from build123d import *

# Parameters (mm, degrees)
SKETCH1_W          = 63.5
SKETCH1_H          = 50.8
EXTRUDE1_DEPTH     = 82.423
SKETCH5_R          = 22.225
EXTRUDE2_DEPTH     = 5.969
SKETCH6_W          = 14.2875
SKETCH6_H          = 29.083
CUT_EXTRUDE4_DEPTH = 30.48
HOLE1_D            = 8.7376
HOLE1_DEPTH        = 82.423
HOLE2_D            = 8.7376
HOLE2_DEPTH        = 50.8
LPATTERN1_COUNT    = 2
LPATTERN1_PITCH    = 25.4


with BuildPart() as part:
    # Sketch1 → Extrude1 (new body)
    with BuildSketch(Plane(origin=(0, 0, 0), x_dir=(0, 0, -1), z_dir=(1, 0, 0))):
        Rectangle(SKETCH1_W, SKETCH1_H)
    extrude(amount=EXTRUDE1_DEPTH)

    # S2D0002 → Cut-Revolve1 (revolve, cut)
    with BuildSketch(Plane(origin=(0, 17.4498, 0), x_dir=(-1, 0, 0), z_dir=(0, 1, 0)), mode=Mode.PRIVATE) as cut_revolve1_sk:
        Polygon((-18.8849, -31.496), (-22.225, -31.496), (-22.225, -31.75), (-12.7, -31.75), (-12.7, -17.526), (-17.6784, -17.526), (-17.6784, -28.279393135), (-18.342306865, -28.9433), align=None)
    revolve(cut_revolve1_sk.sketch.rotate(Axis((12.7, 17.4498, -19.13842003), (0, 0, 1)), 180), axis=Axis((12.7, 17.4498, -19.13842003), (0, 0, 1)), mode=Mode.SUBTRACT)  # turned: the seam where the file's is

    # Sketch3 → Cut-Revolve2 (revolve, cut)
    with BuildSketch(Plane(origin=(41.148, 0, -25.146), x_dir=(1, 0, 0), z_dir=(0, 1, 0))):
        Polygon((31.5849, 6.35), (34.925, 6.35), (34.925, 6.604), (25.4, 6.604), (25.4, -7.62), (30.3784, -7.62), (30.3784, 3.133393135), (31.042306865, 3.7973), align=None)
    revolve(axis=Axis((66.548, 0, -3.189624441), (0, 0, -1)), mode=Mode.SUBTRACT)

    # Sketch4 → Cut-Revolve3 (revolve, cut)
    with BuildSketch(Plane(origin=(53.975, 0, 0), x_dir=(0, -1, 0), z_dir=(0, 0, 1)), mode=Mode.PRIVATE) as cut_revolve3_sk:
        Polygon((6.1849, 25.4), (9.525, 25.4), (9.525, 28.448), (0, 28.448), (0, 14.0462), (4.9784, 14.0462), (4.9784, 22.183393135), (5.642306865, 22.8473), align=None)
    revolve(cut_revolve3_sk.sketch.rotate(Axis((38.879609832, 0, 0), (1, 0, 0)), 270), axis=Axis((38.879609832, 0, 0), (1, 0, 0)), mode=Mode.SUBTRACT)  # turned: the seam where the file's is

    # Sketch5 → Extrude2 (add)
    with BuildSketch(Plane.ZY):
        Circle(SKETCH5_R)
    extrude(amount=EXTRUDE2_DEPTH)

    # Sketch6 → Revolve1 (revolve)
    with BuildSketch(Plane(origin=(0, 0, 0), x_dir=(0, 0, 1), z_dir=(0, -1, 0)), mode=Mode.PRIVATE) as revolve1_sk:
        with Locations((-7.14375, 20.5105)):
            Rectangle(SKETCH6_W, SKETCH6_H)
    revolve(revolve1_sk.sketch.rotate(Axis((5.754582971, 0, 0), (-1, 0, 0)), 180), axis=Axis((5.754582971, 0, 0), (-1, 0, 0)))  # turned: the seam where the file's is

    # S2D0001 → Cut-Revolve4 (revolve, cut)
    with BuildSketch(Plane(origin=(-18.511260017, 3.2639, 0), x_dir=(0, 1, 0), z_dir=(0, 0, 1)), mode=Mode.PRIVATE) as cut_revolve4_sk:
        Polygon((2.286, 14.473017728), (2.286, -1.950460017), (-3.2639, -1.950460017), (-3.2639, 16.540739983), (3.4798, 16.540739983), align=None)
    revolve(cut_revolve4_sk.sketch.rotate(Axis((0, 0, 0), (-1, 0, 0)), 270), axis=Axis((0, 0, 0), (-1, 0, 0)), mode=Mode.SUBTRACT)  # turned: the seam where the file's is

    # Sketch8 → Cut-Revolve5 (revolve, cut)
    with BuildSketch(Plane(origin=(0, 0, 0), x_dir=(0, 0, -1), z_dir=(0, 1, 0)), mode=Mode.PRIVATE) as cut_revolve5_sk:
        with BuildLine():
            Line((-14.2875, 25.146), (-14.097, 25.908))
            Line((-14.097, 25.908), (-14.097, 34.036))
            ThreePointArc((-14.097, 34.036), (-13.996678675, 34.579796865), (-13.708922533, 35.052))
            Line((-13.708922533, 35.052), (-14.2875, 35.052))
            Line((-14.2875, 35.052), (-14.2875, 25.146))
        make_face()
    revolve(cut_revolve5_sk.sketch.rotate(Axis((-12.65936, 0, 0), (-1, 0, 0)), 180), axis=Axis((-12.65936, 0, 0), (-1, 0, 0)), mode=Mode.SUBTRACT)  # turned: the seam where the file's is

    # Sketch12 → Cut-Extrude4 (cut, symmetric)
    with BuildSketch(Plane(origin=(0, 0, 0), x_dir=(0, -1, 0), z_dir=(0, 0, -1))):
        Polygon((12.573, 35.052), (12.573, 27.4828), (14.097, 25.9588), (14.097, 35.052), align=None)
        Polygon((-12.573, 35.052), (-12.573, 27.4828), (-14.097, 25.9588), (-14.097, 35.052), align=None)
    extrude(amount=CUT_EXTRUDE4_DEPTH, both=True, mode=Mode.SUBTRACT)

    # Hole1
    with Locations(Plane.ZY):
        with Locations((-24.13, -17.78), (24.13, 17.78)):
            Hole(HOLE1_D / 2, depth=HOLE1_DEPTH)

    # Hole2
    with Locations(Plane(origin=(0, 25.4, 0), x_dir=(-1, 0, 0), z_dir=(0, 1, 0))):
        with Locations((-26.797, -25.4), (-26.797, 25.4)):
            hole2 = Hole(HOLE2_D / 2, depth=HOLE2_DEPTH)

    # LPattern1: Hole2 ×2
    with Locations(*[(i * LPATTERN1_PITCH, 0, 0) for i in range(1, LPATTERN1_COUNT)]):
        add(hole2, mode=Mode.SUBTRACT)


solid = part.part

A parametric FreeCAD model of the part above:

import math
import FreeCAD as App
import Part
import Sketcher
from FreeCAD import Vector
Q = App.Units.Quantity


def add_polygon(sketch, points):
    """Adds a closed chain of lines whose ends are joined by coincident constraints."""
    first, n = sketch.GeometryCount, len(points)
    for a, b in zip(points, points[1:] + points[:1]):
        sketch.addGeometry(Part.LineSegment(App.Vector(*a, 0), App.Vector(*b, 0)), False)
    for i in range(n):
        sketch.addConstraint(Sketcher.Constraint("Coincident", first + i, 2, first + (i + 1) % n, 1))

doc = App.newDocument("Part")
params = doc.addObject("Spreadsheet::Sheet", "Params")
for row, (alias, value) in enumerate([
    ("sketch1_width", "2 in"),
    ("sketch1_height", "2.5 in"),
    ("pad1_length", "3.245 in"),
    ("sketch2_height", "0.01 in"),
    ("sketch2_height2", "0.56 in"),
    ("sketch2_width", "0.375 in"),
    ("sketch2_width2", "0.196 in"),
    ("groove_angle", "360 deg"),
    ("sketch3_height", "0.01 in"),
    ("sketch3_height2", "0.56 in"),
    ("sketch3_width", "0.375 in"),
    ("sketch3_width2", "0.196 in"),
    ("groove2_angle", "360 deg"),
    ("sketch4_width", "0.12 in"),
    ("sketch4_width2", "0.567 in"),
    ("sketch4_height", "0.375 in"),
    ("sketch4_height2", "0.196 in"),
    ("groove3_angle", "360 deg"),
    ("sketch5_diameter", "1.75 in"),
    ("pad2_length", "0.235 in"),
    ("sketch6_width", "1.145 in"),
    ("sketch6_height", "0.5625 in"),
    ("revolution_angle", "360 deg"),
    ("sketch7_width", "0.728 in"),
    ("sketch7_length", "0.094 in"),
    ("groove4_angle", "360 deg"),
    ("sketch8_radius", "0.06 in"),
    ("sketch8_width", "0.32 in"),
    ("sketch8_width2", "0.39 in"),
    ("groove5_angle", "360 deg"),
    ("sketch9_height", "0.06 in"),
    ("sketch9_width", "0.298 in"),
    ("pocket1_length", "2.4 in"),
    ("sketch10_diameter", "0.344 in"),
    ("hole_diameter", "0.344 in"),
    ("hole_depth", "3.245 in"),
    ("sketch11_diameter", "0.344 in"),
    ("hole2_diameter", "0.344 in"),
    ("hole2_depth", "2 in"),
    ("linearpattern_pitch", "1 in"),
], start=1):
    params.set(f"A{row}", alias)
    params.set(f"B{row}", "=" + value)
    params.setAlias(f"B{row}", alias)

body = doc.addObject("PartDesign::Body", "Body")

# Sketch on YZ plane
sketch1 = body.newObject("Sketcher::SketchObject", "Sketch")
sketch1.AttachmentSupport = (doc.getObject("YZ_Plane"), [""])
sketch1.MapMode = "FlatFace"
add_polygon(sketch1, [(25, 32), (-25, 32), (-25, -32), (25, -32)])  # lines 0-3
sketch1.addConstraint(Sketcher.Constraint("Horizontal", 0))
sketch1.addConstraint(Sketcher.Constraint("Vertical", 1))
sketch1.addConstraint(Sketcher.Constraint("Horizontal", 2))
sketch1.addConstraint(Sketcher.Constraint("Vertical", 3))
sketch1.addConstraint(Sketcher.Constraint("Symmetric", 0, 2, 2, 2, -1, 1))
sketch1.addConstraint(Sketcher.Constraint("DistanceX", 0, 2, 0, 1, Q("2 in")))
sketch1.addConstraint(Sketcher.Constraint("DistanceY", 1, 2, 1, 1, Q("2.5 in")))
sketch1.setExpression("Constraints[9]", "Params.sketch1_width")
sketch1.setExpression("Constraints[10]", "Params.sketch1_height")
pad1 = body.newObject("PartDesign::Pad", "Pad")
pad1.Profile = sketch1
pad1.setExpression("Length", "Params.pad1_length")

# Sketch on XZ plane
sketch2 = body.newObject("Sketcher::SketchObject", "Sketch001")
sketch2.AttachmentSupport = (doc.getObject("XZ_Plane"), [""])
sketch2.MapMode = "FlatFace"
sketch2.AttachmentOffset = App.Placement(Vector(0, 0, -0.687 * 25.4), App.Rotation())
add_polygon(sketch2, [(18.88, -31.5), (22.23, -31.5), (22.23, -31.75), (12.7, -31.75), (12.7, -17.53), (17.68, -17.53), (17.68, -28.28), (18.34, -28.94)])  # lines 0-7
sketch2.addGeometry(Part.LineSegment(Vector(12.7, -31.75, 0), Vector(12.7, -17.53, 0)), True)  # axis
sketch2.addConstraint(Sketcher.Constraint("Horizontal", 0))
sketch2.addConstraint(Sketcher.Constraint("Vertical", 1))
sketch2.addConstraint(Sketcher.Constraint("Horizontal", 2))
sketch2.addConstraint(Sketcher.Constraint("Vertical", 3))
sketch2.addConstraint(Sketcher.Constraint("Horizontal", 4))
sketch2.addConstraint(Sketcher.Constraint("Vertical", 5))
sketch2.addConstraint(Sketcher.Constraint("Vertical", 8))
sketch2.addConstraint(Sketcher.Constraint("Coincident", 8, 1, 2, 2))
sketch2.addConstraint(Sketcher.Constraint("Horizontal", 4, 2, 8, 2))
sketch2.addConstraint(Sketcher.Constraint("Angle", 6, Q("-45 deg")))
sketch2.addConstraint(Sketcher.Constraint("Angle", 7, Q("-78 deg")))
sketch2.addConstraint(Sketcher.Constraint("DistanceY", 1, 2, 1, 1, Q("0.01 in")))
sketch2.addConstraint(Sketcher.Constraint("DistanceY", 3, 1, 3, 2, Q("0.56 in")))
sketch2.addConstraint(Sketcher.Constraint("DistanceX", -1, 1, 2, 2, Q("0.5 in")))
sketch2.addConstraint(Sketcher.Constraint("DistanceX", 2, 2, 2, 1, Q("0.375 in")))
sketch2.addConstraint(Sketcher.Constraint("DistanceX", 4, 1, 4, 2, Q("0.196 in")))
sketch2.addConstraint(Sketcher.Constraint("DistanceY", 0, 2, -1, 1, Q("1.24 in")))
sketch2.addConstraint(Sketcher.Constraint("DistanceX", 0, 1, 0, 2, Q("0.1315 in")))
sketch2.addConstraint(Sketcher.Constraint("DistanceY", 6, 2, -1, 1, Q("1.1395 in")))
sketch2.setExpression("Constraints[19]", "Params.sketch2_height")
sketch2.setExpression("Constraints[20]", "Params.sketch2_height2")
sketch2.setExpression("Constraints[22]", "Params.sketch2_width")
sketch2.setExpression("Constraints[23]", "Params.sketch2_width2")
groove = body.newObject("PartDesign::Groove", "Groove")
groove.Profile = sketch2
groove.ReferenceAxis = (sketch2, ["Axis0"])
groove.setExpression("Angle", "Params.groove_angle")

# Sketch on XZ plane
sketch3 = body.newObject("Sketcher::SketchObject", "Sketch002")
sketch3.AttachmentSupport = (doc.getObject("XZ_Plane"), [""])
sketch3.MapMode = "FlatFace"
add_polygon(sketch3, [(72.73, -31.5), (76.07, -31.5), (76.07, -31.75), (66.55, -31.75), (66.55, -17.53), (71.53, -17.53), (71.53, -28.28), (72.19, -28.94)])  # lines 0-7
sketch3.addGeometry(Part.LineSegment(Vector(66.55, -17.53, 0), Vector(66.55, -31.75, 0)), True)  # axis
sketch3.addConstraint(Sketcher.Constraint("Horizontal", 0))
sketch3.addConstraint(Sketcher.Constraint("Vertical", 1))
sketch3.addConstraint(Sketcher.Constraint("Horizontal", 2))
sketch3.addConstraint(Sketcher.Constraint("Vertical", 3))
sketch3.addConstraint(Sketcher.Constraint("Horizontal", 4))
sketch3.addConstraint(Sketcher.Constraint("Vertical", 5))
sketch3.addConstraint(Sketcher.Constraint("Vertical", 8))
sketch3.addConstraint(Sketcher.Constraint("Coincident", 8, 1, 3, 2))
sketch3.addConstraint(Sketcher.Constraint("Horizontal", 1, 2, 8, 2))
sketch3.addConstraint(Sketcher.Constraint("Angle", 6, Q("-45 deg")))
sketch3.addConstraint(Sketcher.Constraint("Angle", 7, Q("-78 deg")))
sketch3.addConstraint(Sketcher.Constraint("DistanceY", 1, 2, 1, 1, Q("0.01 in")))
sketch3.addConstraint(Sketcher.Constraint("DistanceY", 3, 1, 3, 2, Q("0.56 in")))
sketch3.addConstraint(Sketcher.Constraint("DistanceX", 2, 2, 2, 1, Q("0.375 in")))
sketch3.addConstraint(Sketcher.Constraint("DistanceX", 4, 1, 4, 2, Q("0.196 in")))
sketch3.addConstraint(Sketcher.Constraint("DistanceY", 0, 2, -1, 1, Q("1.24 in")))
sketch3.addConstraint(Sketcher.Constraint("DistanceX", -1, 1, 2, 2, Q("2.62 in")))
sketch3.addConstraint(Sketcher.Constraint("DistanceX", 0, 1, 0, 2, Q("0.1315 in")))
sketch3.addConstraint(Sketcher.Constraint("DistanceY", 6, 2, -1, 1, Q("1.1395 in")))
sketch3.setExpression("Constraints[19]", "Params.sketch3_height")
sketch3.setExpression("Constraints[20]", "Params.sketch3_height2")
sketch3.setExpression("Constraints[21]", "Params.sketch3_width")
sketch3.setExpression("Constraints[22]", "Params.sketch3_width2")
groove2 = body.newObject("PartDesign::Groove", "Groove001")
groove2.Profile = sketch3
groove2.ReferenceAxis = (sketch3, ["Axis0"])
groove2.setExpression("Angle", "Params.groove2_angle")

# Sketch on XY plane
sketch4 = body.newObject("Sketcher::SketchObject", "Sketch003")
sketch4.AttachmentSupport = (doc.getObject("XY_Plane"), [""])
sketch4.MapMode = "FlatFace"
add_polygon(sketch4, [(79.4, -6.2), (79.4, -9.5), (82.4, -9.5), (82.4, 0), (68, 0), (68, -5), (76.2, -5), (76.8, -5.6)])  # lines 0-7
sketch4.addConstraint(Sketcher.Constraint("Vertical", 0))
sketch4.addConstraint(Sketcher.Constraint("Horizontal", 1))
sketch4.addConstraint(Sketcher.Constraint("Vertical", 2))
sketch4.addConstraint(Sketcher.Constraint("Horizontal", 3))
sketch4.addConstraint(Sketcher.Constraint("Vertical", 4))
sketch4.addConstraint(Sketcher.Constraint("Horizontal", 5))
sketch4.addConstraint(Sketcher.Constraint("PointOnObject", 2, 2, -1))
sketch4.addConstraint(Sketcher.Constraint("Angle", 6, Q("-45 deg")))
sketch4.addConstraint(Sketcher.Constraint("Angle", 7, Q("-12 deg")))
sketch4.addConstraint(Sketcher.Constraint("DistanceX", 1, 1, 1, 2, Q("0.12 in")))
sketch4.addConstraint(Sketcher.Constraint("DistanceX", 3, 2, 3, 1, Q("0.567 in")))
sketch4.addConstraint(Sketcher.Constraint("DistanceY", 2, 1, 2, 2, Q("0.375 in")))
sketch4.addConstraint(Sketcher.Constraint("DistanceY", 4, 2, 4, 1, Q("0.196 in")))
sketch4.addConstraint(Sketcher.Constraint("DistanceY", 0, 2, 0, 1, Q("0.1315 in")))
sketch4.addConstraint(Sketcher.Constraint("DistanceX", -1, 1, 0, 2, Q("3.125 in")))
sketch4.addConstraint(Sketcher.Constraint("DistanceX", -1, 1, 6, 2, Q("3.0245 in")))
sketch4.setExpression("Constraints[17]", "Params.sketch4_width")
sketch4.setExpression("Constraints[18]", "Params.sketch4_width2")
sketch4.setExpression("Constraints[19]", "Params.sketch4_height")
sketch4.setExpression("Constraints[20]", "Params.sketch4_height2")
groove3 = body.newObject("PartDesign::Groove", "Groove002")
groove3.Profile = sketch4
groove3.ReferenceAxis = (sketch4, ["H_Axis"])
groove3.setExpression("Angle", "Params.groove3_angle")

# Sketch on YZ plane
sketch5 = body.newObject("Sketcher::SketchObject", "Sketch004")
sketch5.AttachmentSupport = (doc.getObject("YZ_Plane"), [""])
sketch5.MapMode = "FlatFace"
sketch5.addGeometry(Part.Circle(Vector(0, 0, 0), Vector(0, 0, 1), 22), False)
sketch5.addConstraint(Sketcher.Constraint("Coincident", 0, 3, -1, 1))
sketch5.addConstraint(Sketcher.Constraint("Diameter", 0, Q("1.75 in")))
sketch5.setExpression("Constraints[1]", "Params.sketch5_diameter")
pad2 = body.newObject("PartDesign::Pad", "Pad001")
pad2.Profile = sketch5
pad2.setExpression("Length", "Params.pad2_length")
pad2.Reversed = True

# Sketch on XZ plane
sketch6 = body.newObject("Sketcher::SketchObject", "Sketch005")
sketch6.AttachmentSupport = (doc.getObject("XZ_Plane"), [""])
sketch6.MapMode = "FlatFace"
add_polygon(sketch6, [(-35, -14), (-6, -14), (-6, 0), (-35, 0)])  # lines 0-3
sketch6.addConstraint(Sketcher.Constraint("Horizontal", 0))
sketch6.addConstraint(Sketcher.Constraint("Vertical", 1))
sketch6.addConstraint(Sketcher.Constraint("Horizontal", 2))
sketch6.addConstraint(Sketcher.Constraint("Vertical", 3))
sketch6.addConstraint(Sketcher.Constraint("PointOnObject", 1, 2, -1))
sketch6.addConstraint(Sketcher.Constraint("DistanceX", 0, 1, 0, 2, Q("1.145 in")))
sketch6.addConstraint(Sketcher.Constraint("DistanceY", 1, 1, 1, 2, Q("0.5625 in")))
sketch6.addConstraint(Sketcher.Constraint("DistanceX", 2, 2, -1, 1, Q("1.38 in")))
sketch6.setExpression("Constraints[9]", "Params.sketch6_width")
sketch6.setExpression("Constraints[10]", "Params.sketch6_height")
revolution = body.newObject("PartDesign::Revolution", "Revolution")
revolution.Profile = sketch6
revolution.ReferenceAxis = (sketch6, ["H_Axis"])
revolution.setExpression("Angle", "Params.revolution_angle")

# Sketch on XY plane
sketch7 = body.newObject("Sketcher::SketchObject", "Sketch006")
sketch7.AttachmentSupport = (doc.getObject("XY_Plane"), [""])
sketch7.MapMode = "FlatFace"
add_polygon(sketch7, [(-16.6, 5.5), (-33, 5.5), (-35.1, 6.7), (-35.1, 0), (-16.6, 0)])  # lines 0-4
sketch7.addConstraint(Sketcher.Constraint("Horizontal", 0))
sketch7.addConstraint(Sketcher.Constraint("Vertical", 2))
sketch7.addConstraint(Sketcher.Constraint("Horizontal", 3))
sketch7.addConstraint(Sketcher.Constraint("Vertical", 4))
sketch7.addConstraint(Sketcher.Constraint("PointOnObject", 2, 2, -1))
sketch7.addConstraint(Sketcher.Constraint("Angle", 1, Q("150 deg")))
sketch7.addConstraint(Sketcher.Constraint("DistanceX", 3, 1, 3, 2, Q("0.728 in")))
sketch7.addConstraint(Sketcher.Constraint("DistanceX", 1, 2, -1, 1, Q("1.38 in")))
sketch7.addConstraint(Sketcher.Constraint("Distance", 1, Q("0.094 in")))
sketch7.addConstraint(Sketcher.Constraint("DistanceY", 2, 2, 2, 1, Q("0.2655 in")))
sketch7.setExpression("Constraints[11]", "Params.sketch7_width")
sketch7.setExpression("Constraints[13]", "Params.sketch7_length")
groove4 = body.newObject("PartDesign::Groove", "Groove003")
groove4.Profile = sketch7
groove4.ReferenceAxis = (sketch7, ["H_Axis"])
groove4.setExpression("Angle", "Params.groove4_angle")

# Sketch on XZ plane
sketch8 = body.newObject("Sketcher::SketchObject", "Sketch007")
sketch8.AttachmentSupport = (doc.getObject("XZ_Plane"), [""])
sketch8.MapMode = "FlatFace"
sketch8.addGeometry(Part.LineSegment(Vector(-25.1, 14.3, 0), Vector(-25.9, 14.1, 0)), False)
sketch8.addGeometry(Part.LineSegment(Vector(-25.9, 14.1, 0), Vector(-34, 14.1, 0)), False)
sketch8.addGeometry(Part.ArcOfCircle(Part.Circle(Vector(-34, 12.6, 0), Vector(0, 0, 1), 1.5), math.radians(90), math.radians(132)), False)
sketch8.addGeometry(Part.LineSegment(Vector(-35.1, 13.7, 0), Vector(-35.1, 14.3, 0)), False)
sketch8.addGeometry(Part.LineSegment(Vector(-35.1, 14.3, 0), Vector(-25.1, 14.3, 0)), False)
sketch8.addConstraint(Sketcher.Constraint("Coincident", 0, 2, 1, 1))
sketch8.addConstraint(Sketcher.Constraint("Tangent", 1, 2, 2, 1))
sketch8.addConstraint(Sketcher.Constraint("Coincident", 2, 2, 3, 1))
sketch8.addConstraint(Sketcher.Constraint("Coincident", 3, 2, 4, 1))
sketch8.addConstraint(Sketcher.Constraint("Coincident", 4, 2, 0, 1))
sketch8.addConstraint(Sketcher.Constraint("Horizontal", 1))
sketch8.addConstraint(Sketcher.Constraint("Vertical", 3))
sketch8.addConstraint(Sketcher.Constraint("Horizontal", 4))
sketch8.addConstraint(Sketcher.Constraint("Radius", 2, Q("0.06 in")))
sketch8.addConstraint(Sketcher.Constraint("DistanceX", 1, 2, 1, 1, Q("0.32 in")))
sketch8.addConstraint(Sketcher.Constraint("DistanceX", 4, 1, 4, 2, Q("0.39 in")))
sketch8.addConstraint(Sketcher.Constraint("DistanceX", 2, 3, -1, 1, Q("1.34 in")))
sketch8.addConstraint(Sketcher.Constraint("DistanceX", 2, 2, -1, 1, Q("1.38 in")))
sketch8.addConstraint(Sketcher.Constraint("DistanceY", -1, 1, 2, 3, Q("0.495 in")))
sketch8.addConstraint(Sketcher.Constraint("DistanceY", -1, 1, 3, 2, Q("0.5625 in")))
sketch8.setExpression("Constraints[8]", "Params.sketch8_radius")
sketch8.setExpression("Constraints[9]", "Params.sketch8_width")
sketch8.setExpression("Constraints[10]", "Params.sketch8_width2")
groove5 = body.newObject("PartDesign::Groove", "Groove004")
groove5.Profile = sketch8
groove5.ReferenceAxis = (sketch8, ["H_Axis"])
groove5.setExpression("Angle", "Params.groove5_angle")

# Sketch on XY plane
sketch9 = body.newObject("Sketcher::SketchObject", "Sketch008")
sketch9.AttachmentSupport = (doc.getObject("XY_Plane"), [""])
sketch9.MapMode = "FlatFace"
add_polygon(sketch9, [(-35.1, -12.6), (-27.5, -12.6), (-26, -14.1), (-35.1, -14.1)])  # lines 0-3
add_polygon(sketch9, [(-27.5, 12.6), (-35.1, 12.6), (-35.1, 14.1), (-26, 14.1)])  # lines 4-7
sketch9.addConstraint(Sketcher.Constraint("Horizontal", 0))
sketch9.addConstraint(Sketcher.Constraint("Horizontal", 2))
sketch9.addConstraint(Sketcher.Constraint("Vertical", 3))
sketch9.addConstraint(Sketcher.Constraint("Horizontal", 4))
sketch9.addConstraint(Sketcher.Constraint("Vertical", 5))
sketch9.addConstraint(Sketcher.Constraint("Horizontal", 6))
sketch9.addConstraint(Sketcher.Constraint("Symmetric", 3, 2, 4, 2, -1))
sketch9.addConstraint(Sketcher.Constraint("Symmetric", 1, 2, 6, 2, -1))
sketch9.addConstraint(Sketcher.Constraint("Perpendicular", 1, 7))
sketch9.addConstraint(Sketcher.Constraint("Vertical", 0, 2, 7, 2))
sketch9.addConstraint(Sketcher.Constraint("DistanceY", 3, 1, 3, 2, Q("0.06 in")))
sketch9.addConstraint(Sketcher.Constraint("DistanceX", 0, 1, 0, 2, Q("0.298 in")))
sketch9.addConstraint(Sketcher.Constraint("DistanceX", 2, 2, -1, 1, Q("1.38 in")))
sketch9.addConstraint(Sketcher.Constraint("DistanceY", 3, 2, 4, 2, Q("0.99 in")))
sketch9.setExpression("Constraints[18]", "Params.sketch9_height")
sketch9.setExpression("Constraints[19]", "Params.sketch9_width")
pocket1 = body.newObject("PartDesign::Pocket", "Pocket")
pocket1.Profile = sketch9
pocket1.setExpression("Length", "Params.pocket1_length")
pocket1.Midplane = True

# Sketch on YZ plane
sketch10 = body.newObject("Sketcher::SketchObject", "Sketch009")
sketch10.AttachmentSupport = (doc.getObject("YZ_Plane"), [""])
sketch10.MapMode = "FlatFace"
sketch10.addGeometry(Part.Circle(Vector(-17.8, -24.1, 0), Vector(0, 0, 1), 4.4), False)
sketch10.addGeometry(Part.Circle(Vector(17.8, 24.1, 0), Vector(0, 0, 1), 4.4), False)
sketch10.addConstraint(Sketcher.Constraint("Equal", 0, 1))
sketch10.addConstraint(Sketcher.Constraint("Symmetric", 0, 3, 1, 3, -1, 1))
sketch10.addConstraint(Sketcher.Constraint("Diameter", 0, Q("0.344 in")))
sketch10.addConstraint(Sketcher.Constraint("DistanceX", 0, 3, -1, 1, Q("0.7 in")))
sketch10.addConstraint(Sketcher.Constraint("DistanceY", 0, 3, 1, 3, Q("1.9 in")))
sketch10.setExpression("Constraints[2]", "Params.sketch10_diameter")
doc.recompute()
hole = body.newObject("PartDesign::Hole", "Hole")
hole.Profile = sketch10
hole.ThreadType = "None"
hole.setExpression("Diameter", "Params.hole_diameter")
hole.DepthType = "Dimension"
hole.setExpression("Depth", "Params.hole_depth")
hole.DrillPoint = "Flat"
hole.Reversed = True

# Sketch on XZ plane
sketch11 = body.newObject("Sketcher::SketchObject", "Sketch010")
sketch11.AttachmentSupport = (doc.getObject("XZ_Plane"), [""])
sketch11.MapMode = "FlatFace"
sketch11.AttachmentOffset = App.Placement(Vector(0, 0, -1 * 25.4), App.Rotation())
sketch11.addGeometry(Part.Circle(Vector(26.8, -25.4, 0), Vector(0, 0, 1), 4.4), False)
sketch11.addGeometry(Part.Circle(Vector(26.8, 25.4, 0), Vector(0, 0, 1), 4.4), False)
sketch11.addConstraint(Sketcher.Constraint("Equal", 0, 1))
sketch11.addConstraint(Sketcher.Constraint("Symmetric", 0, 3, 1, 3, -1))
sketch11.addConstraint(Sketcher.Constraint("Diameter", 0, Q("0.344 in")))
sketch11.addConstraint(Sketcher.Constraint("DistanceY", 0, 3, -1, 1, Q("1 in")))
sketch11.addConstraint(Sketcher.Constraint("DistanceX", -1, 1, 0, 3, Q("1.055 in")))
sketch11.setExpression("Constraints[2]", "Params.sketch11_diameter")
doc.recompute()
hole2 = body.newObject("PartDesign::Hole", "Hole001")
hole2.Profile = sketch11
hole2.ThreadType = "None"
hole2.setExpression("Diameter", "Params.hole2_diameter")
hole2.DepthType = "Dimension"
hole2.setExpression("Depth", "Params.hole2_depth")
hole2.DrillPoint = "Flat"
hole2.Reversed = True
doc.recompute()

linearpattern = body.newObject("PartDesign::LinearPattern", "LinearPattern")
linearpattern.Originals = [hole2]
linearpattern.Direction = (doc.getObject("X_Axis"), [""])
linearpattern.Mode = "offset"
linearpattern.setExpression("Offset", "Params.linearpattern_pitch")
linearpattern.Occurrences = 2
body.Tip = linearpattern

doc.recompute()
